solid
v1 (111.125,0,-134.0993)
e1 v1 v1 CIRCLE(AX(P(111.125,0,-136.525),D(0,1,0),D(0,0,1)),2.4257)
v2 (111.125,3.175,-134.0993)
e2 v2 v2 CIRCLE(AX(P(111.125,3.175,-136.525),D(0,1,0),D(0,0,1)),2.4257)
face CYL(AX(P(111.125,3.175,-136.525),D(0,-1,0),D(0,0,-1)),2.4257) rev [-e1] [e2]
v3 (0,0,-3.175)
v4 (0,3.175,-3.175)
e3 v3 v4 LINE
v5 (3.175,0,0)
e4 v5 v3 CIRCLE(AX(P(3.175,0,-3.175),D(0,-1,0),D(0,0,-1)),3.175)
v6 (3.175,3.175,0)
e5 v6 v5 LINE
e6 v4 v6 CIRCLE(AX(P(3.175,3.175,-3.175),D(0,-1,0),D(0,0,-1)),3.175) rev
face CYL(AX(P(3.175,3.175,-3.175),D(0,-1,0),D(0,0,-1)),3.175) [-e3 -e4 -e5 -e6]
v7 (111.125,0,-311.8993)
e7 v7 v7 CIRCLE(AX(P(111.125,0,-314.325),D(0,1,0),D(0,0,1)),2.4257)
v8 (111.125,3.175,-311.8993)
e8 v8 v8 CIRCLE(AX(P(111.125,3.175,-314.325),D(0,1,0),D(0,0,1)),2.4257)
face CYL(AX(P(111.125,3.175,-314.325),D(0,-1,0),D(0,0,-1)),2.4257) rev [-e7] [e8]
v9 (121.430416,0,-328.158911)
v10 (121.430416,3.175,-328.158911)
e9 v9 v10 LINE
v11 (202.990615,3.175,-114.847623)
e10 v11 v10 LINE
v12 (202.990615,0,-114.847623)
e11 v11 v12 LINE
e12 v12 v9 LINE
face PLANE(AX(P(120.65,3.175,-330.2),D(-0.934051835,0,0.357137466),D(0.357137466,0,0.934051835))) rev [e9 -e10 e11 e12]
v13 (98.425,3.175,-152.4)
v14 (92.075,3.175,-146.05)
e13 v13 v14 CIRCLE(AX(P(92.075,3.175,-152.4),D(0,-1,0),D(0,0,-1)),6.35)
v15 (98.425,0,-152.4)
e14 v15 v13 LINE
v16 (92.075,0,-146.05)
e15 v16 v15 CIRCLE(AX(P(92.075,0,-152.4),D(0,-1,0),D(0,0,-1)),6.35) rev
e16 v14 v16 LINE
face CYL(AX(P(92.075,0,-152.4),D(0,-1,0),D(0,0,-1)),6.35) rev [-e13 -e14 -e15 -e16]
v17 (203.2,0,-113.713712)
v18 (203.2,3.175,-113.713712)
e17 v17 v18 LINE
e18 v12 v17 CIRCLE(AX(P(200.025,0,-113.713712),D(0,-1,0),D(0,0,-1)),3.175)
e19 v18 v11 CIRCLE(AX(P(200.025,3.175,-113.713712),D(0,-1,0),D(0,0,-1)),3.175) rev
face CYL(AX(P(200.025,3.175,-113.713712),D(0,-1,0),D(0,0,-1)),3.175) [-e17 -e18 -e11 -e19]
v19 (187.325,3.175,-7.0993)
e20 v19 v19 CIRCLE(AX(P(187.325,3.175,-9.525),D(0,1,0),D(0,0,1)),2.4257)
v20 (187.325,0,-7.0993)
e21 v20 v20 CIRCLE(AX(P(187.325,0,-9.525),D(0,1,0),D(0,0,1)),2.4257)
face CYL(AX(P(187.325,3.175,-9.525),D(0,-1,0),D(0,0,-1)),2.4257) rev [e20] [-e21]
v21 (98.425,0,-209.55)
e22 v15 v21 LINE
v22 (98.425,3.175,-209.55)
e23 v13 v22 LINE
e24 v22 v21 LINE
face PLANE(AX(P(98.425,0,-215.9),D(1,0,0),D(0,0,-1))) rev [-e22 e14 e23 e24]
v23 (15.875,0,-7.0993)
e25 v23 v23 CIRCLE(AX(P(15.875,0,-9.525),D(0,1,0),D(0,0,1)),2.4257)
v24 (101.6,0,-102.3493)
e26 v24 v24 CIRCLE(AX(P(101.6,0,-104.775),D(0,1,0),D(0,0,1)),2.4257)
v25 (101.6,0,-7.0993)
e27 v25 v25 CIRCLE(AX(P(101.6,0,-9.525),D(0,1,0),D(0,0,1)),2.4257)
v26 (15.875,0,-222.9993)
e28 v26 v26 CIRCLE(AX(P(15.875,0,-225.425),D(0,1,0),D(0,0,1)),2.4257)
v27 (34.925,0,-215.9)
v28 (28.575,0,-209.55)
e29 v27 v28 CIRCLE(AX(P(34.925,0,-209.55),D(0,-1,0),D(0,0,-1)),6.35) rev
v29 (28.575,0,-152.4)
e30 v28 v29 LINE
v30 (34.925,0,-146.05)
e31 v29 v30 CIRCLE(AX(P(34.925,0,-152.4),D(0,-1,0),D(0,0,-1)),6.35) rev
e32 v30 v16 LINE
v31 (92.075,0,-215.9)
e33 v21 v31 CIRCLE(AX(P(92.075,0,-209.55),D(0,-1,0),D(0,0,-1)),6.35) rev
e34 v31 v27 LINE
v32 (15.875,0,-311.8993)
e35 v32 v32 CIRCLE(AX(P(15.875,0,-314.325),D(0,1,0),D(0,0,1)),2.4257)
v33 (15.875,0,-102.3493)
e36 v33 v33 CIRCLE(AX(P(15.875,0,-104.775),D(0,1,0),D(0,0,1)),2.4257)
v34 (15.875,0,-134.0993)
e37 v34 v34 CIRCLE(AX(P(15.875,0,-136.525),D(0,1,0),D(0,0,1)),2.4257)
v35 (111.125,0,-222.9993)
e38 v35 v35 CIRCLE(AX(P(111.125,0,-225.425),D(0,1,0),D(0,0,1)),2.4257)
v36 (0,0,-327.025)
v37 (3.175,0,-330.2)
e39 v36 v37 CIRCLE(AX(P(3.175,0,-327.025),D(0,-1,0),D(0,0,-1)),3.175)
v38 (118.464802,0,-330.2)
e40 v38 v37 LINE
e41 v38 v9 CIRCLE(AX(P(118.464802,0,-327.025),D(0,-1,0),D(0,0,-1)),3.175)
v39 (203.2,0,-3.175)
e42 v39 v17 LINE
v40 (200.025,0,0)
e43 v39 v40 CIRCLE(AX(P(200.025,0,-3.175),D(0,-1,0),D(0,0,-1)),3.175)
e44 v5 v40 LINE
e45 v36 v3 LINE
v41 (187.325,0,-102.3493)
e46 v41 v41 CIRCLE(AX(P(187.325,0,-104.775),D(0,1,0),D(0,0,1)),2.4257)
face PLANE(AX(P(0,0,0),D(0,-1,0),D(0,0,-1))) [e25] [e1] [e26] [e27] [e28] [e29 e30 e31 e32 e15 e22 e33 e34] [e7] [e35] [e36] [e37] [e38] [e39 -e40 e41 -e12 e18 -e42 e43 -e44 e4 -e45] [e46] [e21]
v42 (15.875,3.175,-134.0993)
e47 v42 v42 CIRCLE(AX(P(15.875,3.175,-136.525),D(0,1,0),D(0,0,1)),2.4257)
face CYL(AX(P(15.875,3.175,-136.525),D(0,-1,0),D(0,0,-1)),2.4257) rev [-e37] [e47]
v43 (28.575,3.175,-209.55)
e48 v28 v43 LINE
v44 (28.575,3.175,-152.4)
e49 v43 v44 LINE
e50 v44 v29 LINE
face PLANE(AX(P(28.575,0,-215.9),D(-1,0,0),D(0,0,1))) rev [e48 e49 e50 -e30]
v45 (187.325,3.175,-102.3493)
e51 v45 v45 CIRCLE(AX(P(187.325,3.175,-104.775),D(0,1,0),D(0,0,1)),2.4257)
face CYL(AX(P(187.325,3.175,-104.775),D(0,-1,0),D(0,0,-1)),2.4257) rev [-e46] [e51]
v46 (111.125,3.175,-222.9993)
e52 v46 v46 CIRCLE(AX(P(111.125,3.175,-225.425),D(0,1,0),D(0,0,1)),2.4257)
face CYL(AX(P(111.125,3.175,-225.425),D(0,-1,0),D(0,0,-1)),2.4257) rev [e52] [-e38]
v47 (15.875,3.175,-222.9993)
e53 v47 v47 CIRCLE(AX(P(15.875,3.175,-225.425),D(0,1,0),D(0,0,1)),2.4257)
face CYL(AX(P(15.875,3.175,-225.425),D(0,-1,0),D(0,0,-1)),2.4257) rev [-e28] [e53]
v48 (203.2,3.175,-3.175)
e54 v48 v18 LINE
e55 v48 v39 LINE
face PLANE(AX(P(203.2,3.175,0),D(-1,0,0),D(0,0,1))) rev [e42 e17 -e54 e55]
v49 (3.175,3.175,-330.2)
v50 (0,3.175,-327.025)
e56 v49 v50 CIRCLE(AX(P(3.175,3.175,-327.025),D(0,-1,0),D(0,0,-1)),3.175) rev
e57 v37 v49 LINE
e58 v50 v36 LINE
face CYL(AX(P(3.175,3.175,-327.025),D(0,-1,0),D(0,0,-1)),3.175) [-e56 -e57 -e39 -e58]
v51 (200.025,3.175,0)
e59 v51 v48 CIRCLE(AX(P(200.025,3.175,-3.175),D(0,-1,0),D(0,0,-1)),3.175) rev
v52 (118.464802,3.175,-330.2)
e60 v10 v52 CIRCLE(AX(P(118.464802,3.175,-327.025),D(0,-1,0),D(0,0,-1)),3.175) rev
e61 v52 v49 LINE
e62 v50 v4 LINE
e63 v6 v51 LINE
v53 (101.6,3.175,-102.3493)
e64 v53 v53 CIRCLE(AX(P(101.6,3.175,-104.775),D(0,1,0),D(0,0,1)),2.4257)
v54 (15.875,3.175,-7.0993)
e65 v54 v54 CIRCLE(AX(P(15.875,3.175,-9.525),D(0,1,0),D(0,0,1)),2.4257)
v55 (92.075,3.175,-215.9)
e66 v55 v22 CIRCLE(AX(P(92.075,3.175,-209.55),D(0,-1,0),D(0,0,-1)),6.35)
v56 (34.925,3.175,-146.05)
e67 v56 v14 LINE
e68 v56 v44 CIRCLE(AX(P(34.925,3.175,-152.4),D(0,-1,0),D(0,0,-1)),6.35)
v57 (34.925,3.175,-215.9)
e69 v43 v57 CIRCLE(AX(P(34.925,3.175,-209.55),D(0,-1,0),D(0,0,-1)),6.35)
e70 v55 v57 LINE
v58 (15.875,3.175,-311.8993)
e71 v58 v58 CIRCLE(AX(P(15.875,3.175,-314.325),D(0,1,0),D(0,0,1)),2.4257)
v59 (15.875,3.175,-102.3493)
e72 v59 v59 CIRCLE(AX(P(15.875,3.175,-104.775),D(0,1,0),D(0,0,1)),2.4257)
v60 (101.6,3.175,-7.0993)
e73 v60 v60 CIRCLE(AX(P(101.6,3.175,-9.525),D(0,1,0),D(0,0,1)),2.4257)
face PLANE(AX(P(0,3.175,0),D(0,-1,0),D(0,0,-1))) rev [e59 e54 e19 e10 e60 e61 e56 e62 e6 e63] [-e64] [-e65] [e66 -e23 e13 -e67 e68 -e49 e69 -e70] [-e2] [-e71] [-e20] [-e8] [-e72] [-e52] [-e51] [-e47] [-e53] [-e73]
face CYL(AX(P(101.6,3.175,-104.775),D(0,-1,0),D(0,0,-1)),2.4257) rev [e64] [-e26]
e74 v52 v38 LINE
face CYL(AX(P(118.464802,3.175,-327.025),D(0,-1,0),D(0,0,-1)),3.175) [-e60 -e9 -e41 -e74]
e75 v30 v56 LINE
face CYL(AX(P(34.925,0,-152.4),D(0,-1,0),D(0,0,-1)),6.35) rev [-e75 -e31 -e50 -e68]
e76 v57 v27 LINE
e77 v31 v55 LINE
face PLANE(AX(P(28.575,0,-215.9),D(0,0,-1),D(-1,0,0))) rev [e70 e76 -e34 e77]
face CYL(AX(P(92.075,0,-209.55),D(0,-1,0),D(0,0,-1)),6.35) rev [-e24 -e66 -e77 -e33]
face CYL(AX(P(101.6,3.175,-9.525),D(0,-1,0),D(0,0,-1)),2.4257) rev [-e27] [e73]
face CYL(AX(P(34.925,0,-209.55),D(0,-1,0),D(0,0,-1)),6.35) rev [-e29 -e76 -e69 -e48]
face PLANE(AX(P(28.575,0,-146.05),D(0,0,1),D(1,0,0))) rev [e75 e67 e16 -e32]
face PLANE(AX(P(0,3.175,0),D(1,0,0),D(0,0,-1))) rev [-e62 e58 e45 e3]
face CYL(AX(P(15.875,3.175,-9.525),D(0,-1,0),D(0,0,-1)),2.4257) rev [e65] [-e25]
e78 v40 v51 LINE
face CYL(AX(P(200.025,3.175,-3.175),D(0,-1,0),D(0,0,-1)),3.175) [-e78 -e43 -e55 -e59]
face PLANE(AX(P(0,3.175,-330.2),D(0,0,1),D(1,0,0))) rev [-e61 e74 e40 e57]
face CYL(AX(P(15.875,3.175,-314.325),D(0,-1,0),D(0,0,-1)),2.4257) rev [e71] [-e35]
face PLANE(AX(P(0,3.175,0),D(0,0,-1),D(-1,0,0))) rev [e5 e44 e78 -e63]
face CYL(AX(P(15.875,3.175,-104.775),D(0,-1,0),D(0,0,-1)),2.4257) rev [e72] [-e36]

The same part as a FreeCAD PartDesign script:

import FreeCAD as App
import Part
import Sketcher
Q = App.Units.Quantity


def edges_at(feature, points):
    """Names of the edges that pass closest to the given points."""
    edges = feature.Shape.Edges
    near = lambda p: min(range(len(edges)), key=lambda i: edges[i].distToShape(Part.Vertex(*p))[0])
    return sorted({f"Edge{near(p) + 1}" for p in points})

doc = App.newDocument("Part")
body = doc.addObject("PartDesign::Body", "Body")

# Sketch on XZ plane
sketch1 = doc.addObject("Sketcher::SketchObject", "Sketch")
body.addObject(sketch1)
sketch1.AttachmentSupport = (doc.XZ_Plane, [""])
sketch1.MapMode = "FlatFace"
sketch1.addGeometry(Part.LineSegment(App.Vector(0, 0, 0), App.Vector(203.2, 0, 0)), False)
sketch1.addGeometry(Part.LineSegment(App.Vector(203.2, 0, 0), App.Vector(203.2, -114.3, 0)), False)
sketch1.addGeometry(Part.LineSegment(App.Vector(203.2, -114.3, 0), App.Vector(120.7, -330.2, 0)), False)
sketch1.addGeometry(Part.LineSegment(App.Vector(120.7, -330.2, 0), App.Vector(0, -330.2, 0)), False)
sketch1.addGeometry(Part.LineSegment(App.Vector(0, -330.2, 0), App.Vector(0, 0, 0)), False)
sketch1.addGeometry(Part.Circle(App.Vector(15.9, -9.5, 0), App.Vector(0, 0, 1), 2.4), False)
sketch1.addGeometry(Part.Circle(App.Vector(15.9, -104.8, 0), App.Vector(0, 0, 1), 2.4), False)
sketch1.addGeometry(Part.Circle(App.Vector(15.9, -136.5, 0), App.Vector(0, 0, 1), 2.4), False)
sketch1.addGeometry(Part.Circle(App.Vector(101.6, -9.5, 0), App.Vector(0, 0, 1), 2.4), False)
sketch1.addGeometry(Part.Circle(App.Vector(187.3, -9.5, 0), App.Vector(0, 0, 1), 2.4), False)
sketch1.addGeometry(Part.Circle(App.Vector(101.6, -104.8, 0), App.Vector(0, 0, 1), 2.4), False)
sketch1.addGeometry(Part.Circle(App.Vector(111.1, -136.5, 0), App.Vector(0, 0, 1), 2.4), False)
sketch1.addGeometry(Part.Circle(App.Vector(187.3, -104.8, 0), App.Vector(0, 0, 1), 2.4), False)
sketch1.addGeometry(Part.Circle(App.Vector(15.9, -225.4, 0), App.Vector(0, 0, 1), 2.4), False)
sketch1.addGeometry(Part.Circle(App.Vector(15.9, -314.3, 0), App.Vector(0, 0, 1), 2.4), False)
sketch1.addGeometry(Part.Circle(App.Vector(111.1, -225.4, 0), App.Vector(0, 0, 1), 2.4), False)
sketch1.addGeometry(Part.Circle(App.Vector(111.1, -314.3, 0), App.Vector(0, 0, 1), 2.4), False)
sketch1.addConstraint(Sketcher.Constraint("Coincident", 0, 2, 1, 1))
sketch1.addConstraint(Sketcher.Constraint("Coincident", 1, 2, 2, 1))
sketch1.addConstraint(Sketcher.Constraint("Coincident", 2, 2, 3, 1))
sketch1.addConstraint(Sketcher.Constraint("Coincident", 3, 2, 4, 1))
sketch1.addConstraint(Sketcher.Constraint("Coincident", 4, 2, 0, 1))
sketch1.addConstraint(Sketcher.Constraint("Horizontal", 0))
sketch1.addConstraint(Sketcher.Constraint("Vertical", 1))
sketch1.addConstraint(Sketcher.Constraint("Horizontal", 3))
sketch1.addConstraint(Sketcher.Constraint("Vertical", 4))
sketch1.addConstraint(Sketcher.Constraint("Coincident", 4, 2, -1, 1))
sketch1.addConstraint(Sketcher.Constraint("Equal", 5, 6))
sketch1.addConstraint(Sketcher.Constraint("Equal", 6, 7))
sketch1.addConstraint(Sketcher.Constraint("Equal", 7, 8))
sketch1.addConstraint(Sketcher.Constraint("Equal", 8, 9))
sketch1.addConstraint(Sketcher.Constraint("Equal", 9, 10))
sketch1.addConstraint(Sketcher.Constraint("Equal", 10, 11))
sketch1.addConstraint(Sketcher.Constraint("Equal", 11, 12))
sketch1.addConstraint(Sketcher.Constraint("Equal", 12, 13))
sketch1.addConstraint(Sketcher.Constraint("Equal", 13, 14))
sketch1.addConstraint(Sketcher.Constraint("Equal", 14, 15))
sketch1.addConstraint(Sketcher.Constraint("Equal", 15, 16))
sketch1.addConstraint(Sketcher.Constraint("Horizontal", 5, 3, 8, 3))
sketch1.addConstraint(Sketcher.Constraint("Horizontal", 8, 3, 9, 3))
sketch1.addConstraint(Sketcher.Constraint("Horizontal", 6, 3, 10, 3))
sketch1.addConstraint(Sketcher.Constraint("Horizontal", 7, 3, 11, 3))
sketch1.addConstraint(Sketcher.Constraint("Horizontal", 10, 3, 12, 3))
sketch1.addConstraint(Sketcher.Constraint("Horizontal", 13, 3, 15, 3))
sketch1.addConstraint(Sketcher.Constraint("Horizontal", 14, 3, 16, 3))
sketch1.addConstraint(Sketcher.Constraint("Vertical", 5, 3, 6, 3))
sketch1.addConstraint(Sketcher.Constraint("Vertical", 6, 3, 7, 3))
sketch1.addConstraint(Sketcher.Constraint("Vertical", 8, 3, 10, 3))
sketch1.addConstraint(Sketcher.Constraint("Vertical", 9, 3, 12, 3))
sketch1.addConstraint(Sketcher.Constraint("Vertical", 7, 3, 13, 3))
sketch1.addConstraint(Sketcher.Constraint("Vertical", 13, 3, 14, 3))
sketch1.addConstraint(Sketcher.Constraint("Vertical", 11, 3, 15, 3))
sketch1.addConstraint(Sketcher.Constraint("Vertical", 15, 3, 16, 3))
sketch1.addConstraint(Sketcher.Constraint("DistanceX", 0, 1, 0, 2, Q("8 in")))
sketch1.addConstraint(Sketcher.Constraint("DistanceY", 4, 1, 4, 2, Q("13 in")))
sketch1.addConstraint(Sketcher.Constraint("Diameter", 5, Q("0.191 in")))
sketch1.addConstraint(Sketcher.Constraint("DistanceY", 1, 2, 1, 1, Q("4.5 in")))
sketch1.addConstraint(Sketcher.Constraint("DistanceX", -1, 1, 8, 3, Q("4 in")))
sketch1.addConstraint(Sketcher.Constraint("DistanceY", 7, 3, 5, 3, Q("5 in")))
sketch1.addConstraint(Sketcher.Constraint("DistanceX", 11, 3, 9, 3, Q("3 in")))
sketch1.addConstraint(Sketcher.Constraint("DistanceY", 14, 3, 7, 3, Q("7 in")))
sketch1.addConstraint(Sketcher.Constraint("DistanceX", 3, 2, 3, 1, Q("4.75 in")))
sketch1.addConstraint(Sketcher.Constraint("DistanceY", 13, 3, 7, 3, Q("3.5 in")))
sketch1.addConstraint(Sketcher.Constraint("DistanceY", 6, 3, 5, 3, Q("3.75 in")))
sketch1.addConstraint(Sketcher.Constraint("DistanceX", 5, 3, 9, 3, Q("6.75 in")))
sketch1.addConstraint(Sketcher.Constraint("DistanceX", -1, 1, 5, 3, Q("0.625 in")))
sketch1.addConstraint(Sketcher.Constraint("DistanceY", 5, 3, -1, 1, Q("0.375 in")))
pad1 = doc.addObject("PartDesign::Pad", "Pad")
body.addObject(pad1)
pad1.Profile = sketch1
pad1.Length = Q("0.125 in")
pad1.Reversed = True
doc.recompute()

fillet = doc.addObject("PartDesign::Fillet", "Fillet")
body.addObject(fillet)
fillet.Base = (pad1, edges_at(pad1, [
    (0, 1.587, -330.2),
    (120.65, 1.587, -330.2),
    (203.2, 1.587, -114.3),
    (203.2, 1.587, 0),
    (0, 1.587, 0),
]))
fillet.Radius = Q("0.125 in")

# Sketch on XZ plane
sketch2 = doc.addObject("Sketcher::SketchObject", "Sketch001")
body.addObject(sketch2)
sketch2.AttachmentSupport = (doc.XZ_Plane, [""])
sketch2.MapMode = "FlatFace"
sketch2.AttachmentOffset = App.Placement(App.Vector(0, 0, -0.125 * 25.4), App.Rotation())
sketch2.addGeometry(Part.LineSegment(App.Vector(29, -216, 0), App.Vector(29, -146, 0)), False)
sketch2.addGeometry(Part.LineSegment(App.Vector(29, -146, 0), App.Vector(98, -146, 0)), False)
sketch2.addGeometry(Part.LineSegment(App.Vector(98, -146, 0), App.Vector(98, -216, 0)), False)
sketch2.addGeometry(Part.LineSegment(App.Vector(98, -216, 0), App.Vector(29, -216, 0)), False)
sketch2.addConstraint(Sketcher.Constraint("Coincident", 0, 2, 1, 1))
sketch2.addConstraint(Sketcher.Constraint("Coincident", 1, 2, 2, 1))
sketch2.addConstraint(Sketcher.Constraint("Coincident", 2, 2, 3, 1))
sketch2.addConstraint(Sketcher.Constraint("Coincident", 3, 2, 0, 1))
sketch2.addConstraint(Sketcher.Constraint("Vertical", 0))
sketch2.addConstraint(Sketcher.Constraint("Horizontal", 1))
sketch2.addConstraint(Sketcher.Constraint("Vertical", 2))
sketch2.addConstraint(Sketcher.Constraint("Horizontal", 3))
sketch2.addConstraint(Sketcher.Constraint("Equal", 3, 0))
sketch2.addConstraint(Sketcher.Constraint("DistanceX", 1, 1, 1, 2, Q("2.75 in")))
sketch2.addConstraint(Sketcher.Constraint("DistanceY", 2, 2, -1, 1, Q("8.5 in")))
sketch2.addConstraint(Sketcher.Constraint("DistanceX", -1, 1, 0, 2, Q("1.125 in")))
pocket1 = doc.addObject("PartDesign::Pocket", "Pocket")
body.addObject(pocket1)
pocket1.Profile = sketch2
pocket1.Type = "ThroughAll"
pocket1.Reversed = True
doc.recompute()

fillet2 = doc.addObject("PartDesign::Fillet", "Fillet001")
body.addObject(fillet2)
fillet2.Base = (pocket1, edges_at(pocket1, [
    (98.425, 1.587, -215.9),
    (98.425, 1.587, -146.05),
    (28.575, 1.587, -146.05),
    (28.575, 1.587, -215.9),
]))
fillet2.Radius = Q("0.25 in")

doc.recompute()
